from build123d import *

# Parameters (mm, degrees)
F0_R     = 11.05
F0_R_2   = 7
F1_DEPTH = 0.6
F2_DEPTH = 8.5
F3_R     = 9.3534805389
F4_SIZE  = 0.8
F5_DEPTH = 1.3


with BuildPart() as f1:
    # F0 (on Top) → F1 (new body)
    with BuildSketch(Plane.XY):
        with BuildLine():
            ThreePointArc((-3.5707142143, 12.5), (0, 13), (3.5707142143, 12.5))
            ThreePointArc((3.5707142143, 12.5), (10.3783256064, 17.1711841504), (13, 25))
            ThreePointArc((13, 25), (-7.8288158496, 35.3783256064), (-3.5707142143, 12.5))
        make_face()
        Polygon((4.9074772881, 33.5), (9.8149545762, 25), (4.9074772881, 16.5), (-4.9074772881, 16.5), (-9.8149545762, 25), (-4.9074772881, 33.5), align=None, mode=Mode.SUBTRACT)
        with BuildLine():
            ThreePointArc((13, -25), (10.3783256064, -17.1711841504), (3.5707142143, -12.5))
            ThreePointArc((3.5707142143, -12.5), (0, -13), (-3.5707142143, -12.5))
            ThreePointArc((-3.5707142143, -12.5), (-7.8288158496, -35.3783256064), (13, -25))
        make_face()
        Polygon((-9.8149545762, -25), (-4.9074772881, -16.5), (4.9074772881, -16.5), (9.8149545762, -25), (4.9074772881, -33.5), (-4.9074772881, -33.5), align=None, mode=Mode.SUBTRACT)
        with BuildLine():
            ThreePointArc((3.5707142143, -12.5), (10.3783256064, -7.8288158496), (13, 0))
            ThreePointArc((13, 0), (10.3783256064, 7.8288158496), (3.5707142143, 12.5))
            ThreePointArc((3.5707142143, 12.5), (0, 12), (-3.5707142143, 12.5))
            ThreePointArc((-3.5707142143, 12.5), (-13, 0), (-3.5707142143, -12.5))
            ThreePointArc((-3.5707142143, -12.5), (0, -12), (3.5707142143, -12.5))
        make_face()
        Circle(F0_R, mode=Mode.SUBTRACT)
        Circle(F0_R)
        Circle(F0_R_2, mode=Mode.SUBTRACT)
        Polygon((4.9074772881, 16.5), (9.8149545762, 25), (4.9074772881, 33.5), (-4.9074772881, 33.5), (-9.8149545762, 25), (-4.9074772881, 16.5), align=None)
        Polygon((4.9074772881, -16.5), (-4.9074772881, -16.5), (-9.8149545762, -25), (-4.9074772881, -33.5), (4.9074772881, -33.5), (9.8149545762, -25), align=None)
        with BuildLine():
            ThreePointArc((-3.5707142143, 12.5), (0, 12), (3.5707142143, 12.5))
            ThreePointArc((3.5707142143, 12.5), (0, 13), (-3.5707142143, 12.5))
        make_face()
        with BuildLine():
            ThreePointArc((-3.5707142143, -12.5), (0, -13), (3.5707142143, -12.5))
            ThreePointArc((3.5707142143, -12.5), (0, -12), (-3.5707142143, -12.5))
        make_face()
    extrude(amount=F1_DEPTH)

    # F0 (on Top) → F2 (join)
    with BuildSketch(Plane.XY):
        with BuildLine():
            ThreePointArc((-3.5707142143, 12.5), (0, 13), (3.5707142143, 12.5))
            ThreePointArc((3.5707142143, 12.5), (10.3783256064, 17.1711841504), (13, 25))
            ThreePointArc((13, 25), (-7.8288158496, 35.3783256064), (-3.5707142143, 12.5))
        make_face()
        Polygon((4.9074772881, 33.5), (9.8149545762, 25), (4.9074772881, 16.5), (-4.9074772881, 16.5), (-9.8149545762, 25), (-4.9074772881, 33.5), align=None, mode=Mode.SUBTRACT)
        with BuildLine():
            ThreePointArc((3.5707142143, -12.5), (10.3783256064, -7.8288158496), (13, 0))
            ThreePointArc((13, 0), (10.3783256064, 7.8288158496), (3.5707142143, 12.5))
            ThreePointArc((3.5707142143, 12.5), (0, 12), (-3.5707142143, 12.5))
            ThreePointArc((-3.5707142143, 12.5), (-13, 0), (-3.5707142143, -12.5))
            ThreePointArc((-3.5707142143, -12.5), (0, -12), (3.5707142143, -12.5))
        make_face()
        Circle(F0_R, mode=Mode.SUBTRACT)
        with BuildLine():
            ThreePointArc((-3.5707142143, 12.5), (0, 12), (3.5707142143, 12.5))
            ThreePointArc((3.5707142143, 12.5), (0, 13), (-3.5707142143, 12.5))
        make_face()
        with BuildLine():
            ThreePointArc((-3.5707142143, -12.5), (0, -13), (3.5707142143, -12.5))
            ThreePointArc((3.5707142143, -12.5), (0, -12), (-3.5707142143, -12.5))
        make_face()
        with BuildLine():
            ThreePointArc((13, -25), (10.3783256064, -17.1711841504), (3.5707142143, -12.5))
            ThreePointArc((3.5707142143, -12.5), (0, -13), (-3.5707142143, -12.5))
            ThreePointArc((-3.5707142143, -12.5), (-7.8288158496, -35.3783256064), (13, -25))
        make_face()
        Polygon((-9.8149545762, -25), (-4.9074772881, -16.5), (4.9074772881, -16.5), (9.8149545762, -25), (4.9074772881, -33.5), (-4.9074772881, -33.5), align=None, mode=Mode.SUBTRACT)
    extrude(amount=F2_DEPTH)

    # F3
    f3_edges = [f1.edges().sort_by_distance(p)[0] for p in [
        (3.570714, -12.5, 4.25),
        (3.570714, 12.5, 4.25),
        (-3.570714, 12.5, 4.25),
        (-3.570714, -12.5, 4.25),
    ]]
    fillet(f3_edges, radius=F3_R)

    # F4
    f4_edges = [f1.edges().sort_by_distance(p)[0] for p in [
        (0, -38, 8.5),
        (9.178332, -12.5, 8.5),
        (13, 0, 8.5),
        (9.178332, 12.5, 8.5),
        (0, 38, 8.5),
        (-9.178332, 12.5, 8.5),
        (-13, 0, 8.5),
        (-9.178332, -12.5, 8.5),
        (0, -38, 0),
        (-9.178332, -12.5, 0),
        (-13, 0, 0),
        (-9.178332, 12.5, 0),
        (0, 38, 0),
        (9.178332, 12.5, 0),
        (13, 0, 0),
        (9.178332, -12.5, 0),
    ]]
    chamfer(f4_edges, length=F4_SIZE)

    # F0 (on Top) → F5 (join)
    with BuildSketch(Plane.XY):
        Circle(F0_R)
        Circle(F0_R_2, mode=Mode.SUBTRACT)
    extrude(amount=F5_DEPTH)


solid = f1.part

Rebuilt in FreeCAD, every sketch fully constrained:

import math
import FreeCAD as App
import Part
import Sketcher
from FreeCAD import Vector
Q = App.Units.Quantity


def edges_at(feature, points):
    """Names of the edges that pass closest to the given points."""
    edges = feature.Shape.Edges
    near = lambda p: min(range(len(edges)), key=lambda i: edges[i].distToShape(Part.Vertex(*p))[0])
    return sorted({f"Edge{near(p) + 1}" for p in points})

doc = App.newDocument("Part")
body = doc.addObject("PartDesign::Body", "Body")

# Sketch on XY plane
sketch1 = body.newObject("Sketcher::SketchObject", "Sketch")
sketch1.AttachmentSupport = (doc.getObject("XY_Plane"), [""])
sketch1.MapMode = "FlatFace"
sketch1.addGeometry(Part.ArcOfCircle(Part.Circle(Vector(0, 25, 0), Vector(0, 0, 1), 13), math.radians(-74), math.radians(0)), False)
sketch1.addGeometry(Part.ArcOfCircle(Part.Circle(Vector(0, 25, 0), Vector(0, 0, 1), 13), math.radians(0), math.radians(254)), False)
sketch1.addGeometry(Part.ArcOfCircle(Part.Circle(Vector(0, 0, 0), Vector(0, 0, 1), 13), math.radians(106), math.radians(254)), False)
sketch1.addGeometry(Part.ArcOfCircle(Part.Circle(Vector(0, -25, 0), Vector(0, 0, 1), 13), math.radians(106), math.radians(360)), False)
sketch1.addGeometry(Part.ArcOfCircle(Part.Circle(Vector(0, -25, 0), Vector(0, 0, 1), 13), math.radians(0), math.radians(74)), False)
sketch1.addGeometry(Part.ArcOfCircle(Part.Circle(Vector(0, 0, 0), Vector(0, 0, 1), 13), math.radians(-74), math.radians(0)), False)
sketch1.addGeometry(Part.ArcOfCircle(Part.Circle(Vector(0, 0, 0), Vector(0, 0, 1), 13), math.radians(0), math.radians(74)), False)
sketch1.addGeometry(Part.Circle(Vector(0, 0, 0), Vector(0, 0, 1), 7), False)
sketch1.addConstraint(Sketcher.Constraint("Tangent", 0, 2, 1, 1))
sketch1.addConstraint(Sketcher.Constraint("Coincident", 1, 2, 2, 1))
sketch1.addConstraint(Sketcher.Constraint("Coincident", 2, 2, 3, 1))
sketch1.addConstraint(Sketcher.Constraint("Tangent", 3, 2, 4, 1))
sketch1.addConstraint(Sketcher.Constraint("Coincident", 4, 2, 5, 1))
sketch1.addConstraint(Sketcher.Constraint("Tangent", 5, 2, 6, 1))
sketch1.addConstraint(Sketcher.Constraint("Coincident", 6, 2, 0, 1))
sketch1.addConstraint(Sketcher.Constraint("Coincident", 2, 3, -1, 1))
sketch1.addConstraint(Sketcher.Constraint("Coincident", 5, 3, -1, 1))
sketch1.addConstraint(Sketcher.Constraint("Coincident", 7, 3, -1, 1))
sketch1.addConstraint(Sketcher.Constraint("Equal", 0, 1))
sketch1.addConstraint(Sketcher.Constraint("Equal", 1, 2))
sketch1.addConstraint(Sketcher.Constraint("Equal", 2, 3))
sketch1.addConstraint(Sketcher.Constraint("Equal", 3, 4))
sketch1.addConstraint(Sketcher.Constraint("Equal", 4, 5))
sketch1.addConstraint(Sketcher.Constraint("Equal", 5, 6))
sketch1.addConstraint(Sketcher.Constraint("Symmetric", 0, 3, 3, 3, -1, 1))
sketch1.addConstraint(Sketcher.Constraint("Symmetric", 0, 2, 3, 2, -1))
sketch1.addConstraint(Sketcher.Constraint("PointOnObject", 5, 2, -1))
sketch1.addConstraint(Sketcher.Constraint("Horizontal", 1, 3, 0, 2))
sketch1.addConstraint(Sketcher.Constraint("Diameter", 7, 14.0))
sketch1.addConstraint(Sketcher.Constraint("Radius", 0, 13.0))
sketch1.addConstraint(Sketcher.Constraint("DistanceY", -1, 1, 0, 3, 25.0))
pad1 = body.newObject("PartDesign::Pad", "Pad")
pad1.Profile = sketch1
pad1.Length = 0.6

# Sketch on XY plane
sketch2 = body.newObject("Sketcher::SketchObject", "Sketch001")
sketch2.AttachmentSupport = (doc.getObject("XY_Plane"), [""])
sketch2.MapMode = "FlatFace"
sketch2.addGeometry(Part.ArcOfCircle(Part.Circle(Vector(0, 25, 0), Vector(0, 0, 1), 13), math.radians(0), math.radians(254)), False)
sketch2.addGeometry(Part.ArcOfCircle(Part.Circle(Vector(0, 0, 0), Vector(0, 0, 1), 13), math.radians(106), math.radians(254)), False)
sketch2.addGeometry(Part.ArcOfCircle(Part.Circle(Vector(0, -25, 0), Vector(0, 0, 1), 13), math.radians(106), math.radians(360)), False)
sketch2.addGeometry(Part.ArcOfCircle(Part.Circle(Vector(0, -25, 0), Vector(0, 0, 1), 13), math.radians(0), math.radians(74)), False)
sketch2.addGeometry(Part.ArcOfCircle(Part.Circle(Vector(0, 0, 0), Vector(0, 0, 1), 13), math.radians(-74), math.radians(0)), False)
sketch2.addGeometry(Part.ArcOfCircle(Part.Circle(Vector(0, 0, 0), Vector(0, 0, 1), 13), math.radians(0), math.radians(74)), False)
sketch2.addGeometry(Part.ArcOfCircle(Part.Circle(Vector(0, 25, 0), Vector(0, 0, 1), 13), math.radians(-74), math.radians(0)), False)
sketch2.addGeometry(Part.LineSegment(Vector(-5, -34, 0), Vector(-10, -25, 0)), False)
sketch2.addGeometry(Part.LineSegment(Vector(-10, -25, 0), Vector(-5, -16, 0)), False)
sketch2.addGeometry(Part.LineSegment(Vector(-5, -16, 0), Vector(5, -16, 0)), False)
sketch2.addGeometry(Part.LineSegment(Vector(5, -16, 0), Vector(10, -25, 0)), False)
sketch2.addGeometry(Part.LineSegment(Vector(10, -25, 0), Vector(5, -34, 0)), False)
sketch2.addGeometry(Part.LineSegment(Vector(5, -34, 0), Vector(-5, -34, 0)), False)
sketch2.addGeometry(Part.Circle(Vector(0, 0, 0), Vector(0, 0, 1), 11), False)
sketch2.addGeometry(Part.LineSegment(Vector(-5, 34, 0), Vector(5, 34, 0)), False)
sketch2.addGeometry(Part.LineSegment(Vector(5, 34, 0), Vector(10, 25, 0)), False)
sketch2.addGeometry(Part.LineSegment(Vector(10, 25, 0), Vector(5, 16, 0)), False)
sketch2.addGeometry(Part.LineSegment(Vector(5, 16, 0), Vector(-5, 16, 0)), False)
sketch2.addGeometry(Part.LineSegment(Vector(-5, 16, 0), Vector(-10, 25, 0)), False)
sketch2.addGeometry(Part.LineSegment(Vector(-10, 25, 0), Vector(-5, 34, 0)), False)
sketch2.addConstraint(Sketcher.Constraint("Coincident", 0, 2, 1, 1))
sketch2.addConstraint(Sketcher.Constraint("Coincident", 1, 2, 2, 1))
sketch2.addConstraint(Sketcher.Constraint("Tangent", 2, 2, 3, 1))
sketch2.addConstraint(Sketcher.Constraint("Coincident", 3, 2, 4, 1))
sketch2.addConstraint(Sketcher.Constraint("Tangent", 4, 2, 5, 1))
sketch2.addConstraint(Sketcher.Constraint("Coincident", 5, 2, 6, 1))
sketch2.addConstraint(Sketcher.Constraint("Tangent", 6, 2, 0, 1))
sketch2.addConstraint(Sketcher.Constraint("Coincident", 7, 2, 8, 1))
sketch2.addConstraint(Sketcher.Constraint("Coincident", 8, 2, 9, 1))
sketch2.addConstraint(Sketcher.Constraint("Coincident", 9, 2, 10, 1))
sketch2.addConstraint(Sketcher.Constraint("Coincident", 10, 2, 11, 1))
sketch2.addConstraint(Sketcher.Constraint("Coincident", 11, 2, 12, 1))
sketch2.addConstraint(Sketcher.Constraint("Coincident", 12, 2, 7, 1))
sketch2.addConstraint(Sketcher.Constraint("Coincident", 14, 2, 15, 1))
sketch2.addConstraint(Sketcher.Constraint("Coincident", 15, 2, 16, 1))
sketch2.addConstraint(Sketcher.Constraint("Coincident", 16, 2, 17, 1))
sketch2.addConstraint(Sketcher.Constraint("Coincident", 17, 2, 18, 1))
sketch2.addConstraint(Sketcher.Constraint("Coincident", 18, 2, 19, 1))
sketch2.addConstraint(Sketcher.Constraint("Coincident", 19, 2, 14, 1))
sketch2.addConstraint(Sketcher.Constraint("Horizontal", 9))
sketch2.addConstraint(Sketcher.Constraint("Horizontal", 12))
sketch2.addConstraint(Sketcher.Constraint("Horizontal", 14))
sketch2.addConstraint(Sketcher.Constraint("Horizontal", 17))
sketch2.addConstraint(Sketcher.Constraint("Coincident", 1, 3, -1, 1))
sketch2.addConstraint(Sketcher.Constraint("Coincident", 4, 3, -1, 1))
sketch2.addConstraint(Sketcher.Constraint("Coincident", 13, 3, -1, 1))
sketch2.addConstraint(Sketcher.Constraint("Equal", 0, 1))
sketch2.addConstraint(Sketcher.Constraint("Equal", 1, 2))
sketch2.addConstraint(Sketcher.Constraint("Equal", 2, 3))
sketch2.addConstraint(Sketcher.Constraint("Equal", 3, 4))
sketch2.addConstraint(Sketcher.Constraint("Equal", 4, 5))
sketch2.addConstraint(Sketcher.Constraint("Equal", 5, 6))
sketch2.addConstraint(Sketcher.Constraint("Symmetric", 0, 3, 2, 3, -1, 1))
sketch2.addConstraint(Sketcher.Constraint("Symmetric", 12, 2, 14, 2, -1, 1))
sketch2.addConstraint(Sketcher.Constraint("Symmetric", 7, 2, 15, 2, -1, 1))
sketch2.addConstraint(Sketcher.Constraint("Symmetric", 8, 2, 16, 2, -1, 1))
sketch2.addConstraint(Sketcher.Constraint("Symmetric", 10, 2, 18, 2, -1, 1))
sketch2.addConstraint(Sketcher.Constraint("Symmetric", 7, 2, 10, 2, -2))
sketch2.addConstraint(Sketcher.Constraint("Symmetric", 2, 2, 6, 2, -1))
sketch2.addConstraint(Sketcher.Constraint("PointOnObject", 4, 2, -1))
sketch2.addConstraint(Sketcher.Constraint("Parallel", 7, 10))
sketch2.addConstraint(Sketcher.Constraint("Parallel", 8, 11))
sketch2.addConstraint(Sketcher.Constraint("Parallel", 15, 18))
sketch2.addConstraint(Sketcher.Constraint("Parallel", 16, 19))
sketch2.addConstraint(Sketcher.Constraint("Horizontal", 3, 3, 2, 2))
sketch2.addConstraint(Sketcher.Constraint("Horizontal", 2, 2, 7, 2))
sketch2.addConstraint(Sketcher.Constraint("Vertical", 9, 2, 11, 2))
sketch2.addConstraint(Sketcher.Constraint("Vertical", 8, 2, 12, 2))
sketch2.addConstraint(Sketcher.Constraint("Radius", 0, 13.0))
sketch2.addConstraint(Sketcher.Constraint("Diameter", 13, 22.1))
sketch2.addConstraint(Sketcher.Constraint("Angle", 7, Q("120 deg")))
sketch2.addConstraint(Sketcher.Constraint("DistanceY", -1, 1, 0, 3, 25.0))
sketch2.addConstraint(Sketcher.Constraint("DistanceY", 8, 2, 1, 2, 4.0))
sketch2.addConstraint(Sketcher.Constraint("DistanceX", 9, 1, 9, 2, 9.814955))
pad2 = body.newObject("PartDesign::Pad", "Pad001")
pad2.Profile = sketch2
pad2.Length = 8.5
doc.recompute()

fillet = body.newObject("PartDesign::Fillet", "Fillet")
fillet.Base = (pad2, edges_at(pad2, [
    (3.571, -12.5, 4.25),
    (3.571, 12.5, 4.25),
    (-3.571, 12.5, 4.25),
    (-3.571, -12.5, 4.25),
]))
fillet.Radius = 9.353481
doc.recompute()

chamfer = body.newObject("PartDesign::Chamfer", "Chamfer")
chamfer.Base = (fillet, edges_at(fillet, [
    (-3.801, -37.432, 8.5),
    (9.178, -12.5, 8.5),
    (12.432, 3.801, 8.5),
    (9.178, 12.5, 8.5),
    (-3.801, 37.432, 8.5),
    (-9.178, 12.5, 8.5),
    (-13, 0, 8.5),
    (-9.178, -12.5, 8.5),
    (-3.801, -37.432, 0),
    (-9.178, -12.5, 0),
    (-13, 0, 0),
    (-9.178, 12.5, 0),
    (-3.801, 37.432, 0),
    (9.178, 12.5, 0),
    (12.432, 3.801, 0),
    (9.178, -12.5, 0),
]))
chamfer.Size = 0.8

# Sketch on XY plane
sketch3 = body.newObject("Sketcher::SketchObject", "Sketch002")
sketch3.AttachmentSupport = (doc.getObject("XY_Plane"), [""])
sketch3.MapMode = "FlatFace"
sketch3.addGeometry(Part.Circle(Vector(0, 0, 0), Vector(0, 0, 1), 11), False)
sketch3.addGeometry(Part.Circle(Vector(0, 0, 0), Vector(0, 0, 1), 7), False)
sketch3.addConstraint(Sketcher.Constraint("Coincident", 0, 3, -1, 1))
sketch3.addConstraint(Sketcher.Constraint("Coincident", 1, 3, -1, 1))
sketch3.addConstraint(Sketcher.Constraint("Diameter", 1, 14.0))
sketch3.addConstraint(Sketcher.Constraint("Diameter", 0, 22.1))
pad3 = body.newObject("PartDesign::Pad", "Pad002")
pad3.Profile = sketch3
pad3.Length = 1.3

doc.recompute()
